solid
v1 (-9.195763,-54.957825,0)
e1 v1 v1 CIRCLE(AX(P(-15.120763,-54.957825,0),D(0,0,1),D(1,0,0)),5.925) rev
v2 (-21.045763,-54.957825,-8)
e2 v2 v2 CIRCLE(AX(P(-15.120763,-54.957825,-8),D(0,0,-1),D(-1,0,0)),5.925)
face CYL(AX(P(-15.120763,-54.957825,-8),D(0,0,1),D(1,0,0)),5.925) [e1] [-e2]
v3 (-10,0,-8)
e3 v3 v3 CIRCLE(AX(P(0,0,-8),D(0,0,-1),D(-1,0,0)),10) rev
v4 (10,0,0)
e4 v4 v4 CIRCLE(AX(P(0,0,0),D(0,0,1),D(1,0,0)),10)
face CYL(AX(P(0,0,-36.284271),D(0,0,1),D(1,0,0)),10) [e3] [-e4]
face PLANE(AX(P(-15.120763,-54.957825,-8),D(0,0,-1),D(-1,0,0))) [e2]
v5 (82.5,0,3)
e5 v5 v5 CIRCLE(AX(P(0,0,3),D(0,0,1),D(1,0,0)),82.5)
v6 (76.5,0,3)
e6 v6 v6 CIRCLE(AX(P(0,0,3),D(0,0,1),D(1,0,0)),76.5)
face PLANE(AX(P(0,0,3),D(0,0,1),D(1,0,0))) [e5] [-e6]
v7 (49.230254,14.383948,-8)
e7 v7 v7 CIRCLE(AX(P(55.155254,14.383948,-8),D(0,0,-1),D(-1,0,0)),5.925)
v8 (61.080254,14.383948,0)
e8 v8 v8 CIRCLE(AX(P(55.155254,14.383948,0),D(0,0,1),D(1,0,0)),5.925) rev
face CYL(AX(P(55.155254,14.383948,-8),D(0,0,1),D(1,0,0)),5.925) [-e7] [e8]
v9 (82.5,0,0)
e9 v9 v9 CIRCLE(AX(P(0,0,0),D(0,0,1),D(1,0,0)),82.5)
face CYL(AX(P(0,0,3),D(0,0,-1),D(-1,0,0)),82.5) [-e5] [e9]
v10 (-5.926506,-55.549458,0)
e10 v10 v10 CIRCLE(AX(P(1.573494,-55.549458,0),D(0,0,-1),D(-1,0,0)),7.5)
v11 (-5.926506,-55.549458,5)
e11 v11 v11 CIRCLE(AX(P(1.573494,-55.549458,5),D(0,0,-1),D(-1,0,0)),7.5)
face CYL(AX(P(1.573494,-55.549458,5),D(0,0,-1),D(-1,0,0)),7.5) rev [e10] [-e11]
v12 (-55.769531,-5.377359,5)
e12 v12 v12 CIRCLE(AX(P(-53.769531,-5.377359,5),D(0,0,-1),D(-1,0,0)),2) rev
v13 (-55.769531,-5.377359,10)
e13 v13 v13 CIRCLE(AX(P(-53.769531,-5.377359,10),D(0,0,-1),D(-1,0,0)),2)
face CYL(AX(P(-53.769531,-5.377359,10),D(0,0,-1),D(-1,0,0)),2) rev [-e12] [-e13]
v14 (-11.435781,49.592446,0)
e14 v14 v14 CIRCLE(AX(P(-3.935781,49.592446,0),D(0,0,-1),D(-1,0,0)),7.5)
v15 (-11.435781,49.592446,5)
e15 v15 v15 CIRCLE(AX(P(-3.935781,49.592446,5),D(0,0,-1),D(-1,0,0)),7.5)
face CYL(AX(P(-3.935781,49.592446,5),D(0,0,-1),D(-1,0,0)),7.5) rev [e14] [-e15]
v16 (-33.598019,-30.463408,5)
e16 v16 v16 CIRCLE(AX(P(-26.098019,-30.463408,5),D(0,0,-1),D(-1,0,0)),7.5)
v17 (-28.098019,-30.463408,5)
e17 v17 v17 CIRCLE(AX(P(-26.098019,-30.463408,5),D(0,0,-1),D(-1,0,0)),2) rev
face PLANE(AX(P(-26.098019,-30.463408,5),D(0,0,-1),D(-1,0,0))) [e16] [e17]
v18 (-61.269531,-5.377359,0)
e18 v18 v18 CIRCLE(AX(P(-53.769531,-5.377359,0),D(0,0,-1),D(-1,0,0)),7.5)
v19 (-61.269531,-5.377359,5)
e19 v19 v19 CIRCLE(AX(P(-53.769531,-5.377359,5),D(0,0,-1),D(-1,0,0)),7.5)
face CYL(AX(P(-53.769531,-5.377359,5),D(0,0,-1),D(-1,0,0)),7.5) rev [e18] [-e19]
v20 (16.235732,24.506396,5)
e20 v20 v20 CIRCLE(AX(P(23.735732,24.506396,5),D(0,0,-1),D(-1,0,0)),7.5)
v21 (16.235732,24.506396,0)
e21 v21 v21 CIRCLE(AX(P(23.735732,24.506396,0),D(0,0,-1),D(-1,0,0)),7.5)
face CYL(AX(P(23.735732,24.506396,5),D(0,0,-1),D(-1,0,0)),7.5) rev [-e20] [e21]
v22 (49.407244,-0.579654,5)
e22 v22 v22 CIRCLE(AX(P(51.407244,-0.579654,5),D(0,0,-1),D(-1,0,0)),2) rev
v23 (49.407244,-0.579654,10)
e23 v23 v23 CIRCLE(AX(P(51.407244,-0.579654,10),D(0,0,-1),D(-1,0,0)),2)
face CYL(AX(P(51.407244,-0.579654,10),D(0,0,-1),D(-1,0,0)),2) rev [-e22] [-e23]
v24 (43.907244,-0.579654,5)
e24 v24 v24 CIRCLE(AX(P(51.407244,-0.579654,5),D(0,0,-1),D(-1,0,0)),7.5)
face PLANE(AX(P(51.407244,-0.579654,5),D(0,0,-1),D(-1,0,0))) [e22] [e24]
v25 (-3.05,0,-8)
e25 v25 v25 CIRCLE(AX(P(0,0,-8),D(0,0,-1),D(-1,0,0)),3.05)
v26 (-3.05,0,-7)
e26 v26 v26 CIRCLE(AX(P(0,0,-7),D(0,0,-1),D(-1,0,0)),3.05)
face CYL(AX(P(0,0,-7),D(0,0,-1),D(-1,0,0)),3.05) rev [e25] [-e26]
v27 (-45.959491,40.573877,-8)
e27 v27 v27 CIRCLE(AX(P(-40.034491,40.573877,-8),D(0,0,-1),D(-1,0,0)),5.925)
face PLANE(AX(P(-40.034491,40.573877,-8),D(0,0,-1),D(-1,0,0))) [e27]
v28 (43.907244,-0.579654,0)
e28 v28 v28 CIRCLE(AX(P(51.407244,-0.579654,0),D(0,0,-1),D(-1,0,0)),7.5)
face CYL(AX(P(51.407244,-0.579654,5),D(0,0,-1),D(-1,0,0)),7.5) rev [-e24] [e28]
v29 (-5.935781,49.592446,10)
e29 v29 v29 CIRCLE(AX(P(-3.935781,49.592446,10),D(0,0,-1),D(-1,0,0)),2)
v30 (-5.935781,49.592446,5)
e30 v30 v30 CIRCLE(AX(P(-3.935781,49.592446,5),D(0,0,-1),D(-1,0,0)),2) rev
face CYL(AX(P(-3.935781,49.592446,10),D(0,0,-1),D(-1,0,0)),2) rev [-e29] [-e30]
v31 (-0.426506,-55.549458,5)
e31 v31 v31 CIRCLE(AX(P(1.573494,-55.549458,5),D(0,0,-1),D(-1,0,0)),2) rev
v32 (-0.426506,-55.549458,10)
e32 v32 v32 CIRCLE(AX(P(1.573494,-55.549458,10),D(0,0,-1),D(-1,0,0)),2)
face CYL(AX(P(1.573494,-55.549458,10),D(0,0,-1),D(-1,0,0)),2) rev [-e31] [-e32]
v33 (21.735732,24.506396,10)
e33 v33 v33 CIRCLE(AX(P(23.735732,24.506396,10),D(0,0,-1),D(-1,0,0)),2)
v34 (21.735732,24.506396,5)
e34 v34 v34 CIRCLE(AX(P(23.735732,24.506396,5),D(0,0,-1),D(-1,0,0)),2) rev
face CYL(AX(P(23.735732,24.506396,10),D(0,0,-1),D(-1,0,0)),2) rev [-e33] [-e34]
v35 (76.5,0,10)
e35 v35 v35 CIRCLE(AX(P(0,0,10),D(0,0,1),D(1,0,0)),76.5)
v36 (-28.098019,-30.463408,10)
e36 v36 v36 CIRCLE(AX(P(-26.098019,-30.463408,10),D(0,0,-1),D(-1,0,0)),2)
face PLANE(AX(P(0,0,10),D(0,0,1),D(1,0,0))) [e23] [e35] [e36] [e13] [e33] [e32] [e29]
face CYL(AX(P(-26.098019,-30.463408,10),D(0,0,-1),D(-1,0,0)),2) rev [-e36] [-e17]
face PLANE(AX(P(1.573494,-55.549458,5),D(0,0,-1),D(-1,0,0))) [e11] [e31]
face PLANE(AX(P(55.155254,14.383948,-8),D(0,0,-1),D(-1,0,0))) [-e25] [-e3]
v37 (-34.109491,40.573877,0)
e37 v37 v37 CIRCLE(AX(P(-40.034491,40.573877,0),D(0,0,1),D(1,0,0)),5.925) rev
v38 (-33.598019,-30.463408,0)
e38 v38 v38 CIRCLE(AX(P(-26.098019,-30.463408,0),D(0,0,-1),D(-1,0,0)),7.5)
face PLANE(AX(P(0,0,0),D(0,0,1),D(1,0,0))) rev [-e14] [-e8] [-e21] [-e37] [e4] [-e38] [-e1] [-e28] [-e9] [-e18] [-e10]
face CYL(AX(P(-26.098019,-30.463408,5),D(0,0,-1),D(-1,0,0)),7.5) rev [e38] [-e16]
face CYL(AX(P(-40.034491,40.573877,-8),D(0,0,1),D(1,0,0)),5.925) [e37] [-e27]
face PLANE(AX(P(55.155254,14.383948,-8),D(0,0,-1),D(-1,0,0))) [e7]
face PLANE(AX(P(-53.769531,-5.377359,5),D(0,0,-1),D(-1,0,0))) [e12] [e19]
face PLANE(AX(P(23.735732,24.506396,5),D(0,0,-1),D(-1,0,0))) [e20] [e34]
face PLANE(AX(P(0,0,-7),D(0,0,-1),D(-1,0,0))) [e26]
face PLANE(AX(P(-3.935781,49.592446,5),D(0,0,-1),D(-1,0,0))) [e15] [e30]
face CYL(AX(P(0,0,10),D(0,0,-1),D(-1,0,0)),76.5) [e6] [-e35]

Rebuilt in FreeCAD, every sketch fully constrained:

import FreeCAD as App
import Part
import Sketcher

V = App.Vector

doc = App.newDocument("Part")
params = doc.addObject("Spreadsheet::Sheet", "Params")
for row, (alias, value) in enumerate([
    ("sketch1_diameter", "165 mm"),
    ("sketch1_diameter2", "28 mm"),
    ("pad1_length", "3 mm"),
    ("sketch2_diameter", "11.85 mm"),
    ("pad2_length", "8 mm"),
    ("sketch3_diameter", "28 mm"),
    ("pad3_length", "3 mm"),
    ("sketch4_diameter", "20 mm"),
    ("pad4_length", "11 mm"),
    ("sketch5_diameter", "6.1 mm"),
    ("pocket1_length", "1 mm"),
    ("sketch6_diameter", "153 mm"),
    ("pad5_length", "7 mm"),
    ("sketch7_diameter", "4 mm"),
    ("sketch8_diameter", "15 mm"),
    ("pocket3_length", "5 mm"),
], start=1):
    params.set(f"A{row}", alias)
    params.set(f"B{row}", "=" + value)
    params.setAlias(f"B{row}", alias)

body = doc.addObject("PartDesign::Body", "Body")

sketch1 = body.newObject("Sketcher::SketchObject", "Sketch")
sketch1.AttachmentSupport = (doc.getObject("XY_Plane"), [""])
sketch1.MapMode = "FlatFace"
sketch1.addGeometry([
    Part.Circle(V(0, 0, 0), V(0, 0, 1), 82),
    Part.Circle(V(0, 0, 0), V(0, 0, 1), 14),
], False)
sketch1.addConstraint([
    Sketcher.Constraint("Coincident", 0, 3, -1, 1),
    Sketcher.Constraint("Coincident", 1, 3, -1, 1),
    Sketcher.Constraint("Diameter", 0, 165.0),
    Sketcher.Constraint("Diameter", 1, 28.0),
])
sketch1.setExpression("Constraints[2]", "Params.sketch1_diameter")
sketch1.setExpression("Constraints[3]", "Params.sketch1_diameter2")
pad1 = body.newObject("PartDesign::Pad", "Pad")
pad1.Profile = sketch1
pad1.setExpression("Length", "Params.pad1_length")

sketch2 = body.newObject("Sketcher::SketchObject", "Sketch001")
sketch2.AttachmentSupport = (doc.getObject("XY_Plane"), [""])
sketch2.MapMode = "FlatFace"
sketch2.addGeometry([
    Part.Circle(V(55, 14, 0), V(0, 0, 1), 6),
    Part.Circle(V(-40, 41, 0), V(0, 0, 1), 6),
    Part.Circle(V(-15, -55, 0), V(0, 0, 1), 6),
], False)
sketch2.addConstraint([
    Sketcher.Constraint("Equal", 0, 1),
    Sketcher.Constraint("Equal", 1, 2),
    Sketcher.Constraint("Diameter", 0, 11.85),
    Sketcher.Constraint("DistanceX", 1, 3, -1, 1, 40.034491),
    Sketcher.Constraint("DistanceY", 0, 3, 1, 3, 26.18993),
    Sketcher.Constraint("DistanceX", 1, 3, 2, 3, 24.913728),
    Sketcher.Constraint("DistanceX", -1, 1, 0, 3, 55.155254),
    Sketcher.Constraint("DistanceY", -1, 1, 0, 3, 14.383948),
    Sketcher.Constraint("DistanceY", 2, 3, -1, 1, 54.957825),
])
sketch2.setExpression("Constraints[2]", "Params.sketch2_diameter")
pad2 = body.newObject("PartDesign::Pad", "Pad001")
pad2.Profile = sketch2
pad2.setExpression("Length", "Params.pad2_length")
pad2.Reversed = True

sketch3 = body.newObject("Sketcher::SketchObject", "Sketch002")
sketch3.AttachmentSupport = (doc.getObject("XY_Plane"), [""])
sketch3.MapMode = "FlatFace"
sketch3.AttachmentOffset = App.Placement(V(0, 0, 3), App.Rotation())
sketch3.addGeometry(Part.Circle(V(0, 0, 0), V(0, 0, 1), 14), False)
sketch3.addConstraint([
    Sketcher.Constraint("Coincident", 0, 3, -1, 1),
    Sketcher.Constraint("Diameter", 0, 28.0),
])
sketch3.setExpression("Constraints[1]", "Params.sketch3_diameter")
pad3 = body.newObject("PartDesign::Pad", "Pad002")
pad3.Profile = sketch3
pad3.setExpression("Length", "Params.pad3_length")
pad3.Reversed = True

sketch4 = body.newObject("Sketcher::SketchObject", "Sketch003")
sketch4.AttachmentSupport = (doc.getObject("XY_Plane"), [""])
sketch4.MapMode = "FlatFace"
sketch4.AttachmentOffset = App.Placement(V(0, 0, 3), App.Rotation())
sketch4.addGeometry(Part.Circle(V(0, 0, 0), V(0, 0, 1), 10), False)
sketch4.addConstraint([
    Sketcher.Constraint("Coincident", 0, 3, -1, 1),
    Sketcher.Constraint("Diameter", 0, 20.0),
])
sketch4.setExpression("Constraints[1]", "Params.sketch4_diameter")
pad4 = body.newObject("PartDesign::Pad", "Pad003")
pad4.Profile = sketch4
pad4.setExpression("Length", "Params.pad4_length")
pad4.Reversed = True

sketch5 = body.newObject("Sketcher::SketchObject", "Sketch004")
sketch5.AttachmentSupport = (doc.getObject("XY_Plane"), [""])
sketch5.MapMode = "FlatFace"
sketch5.AttachmentOffset = App.Placement(V(0, 0, -8), App.Rotation())
sketch5.addGeometry(Part.Circle(V(0, 0, 0), V(0, 0, 1), 3), False)
sketch5.addConstraint([
    Sketcher.Constraint("Coincident", 0, 3, -1, 1),
    Sketcher.Constraint("Diameter", 0, 6.1),
])
sketch5.setExpression("Constraints[1]", "Params.sketch5_diameter")
pocket1 = body.newObject("PartDesign::Pocket", "Pocket")
pocket1.Profile = sketch5
pocket1.setExpression("Length", "Params.pocket1_length")
pocket1.Reversed = True

sketch6 = body.newObject("Sketcher::SketchObject", "Sketch005")
sketch6.AttachmentSupport = (doc.getObject("XY_Plane"), [""])
sketch6.MapMode = "FlatFace"
sketch6.AttachmentOffset = App.Placement(V(0, 0, 3), App.Rotation())
sketch6.addGeometry(Part.Circle(V(0, 0, 0), V(0, 0, 1), 76), False)
sketch6.addConstraint([
    Sketcher.Constraint("Coincident", 0, 3, -1, 1),
    Sketcher.Constraint("Diameter", 0, 153.0),
])
sketch6.setExpression("Constraints[1]", "Params.sketch6_diameter")
pad5 = body.newObject("PartDesign::Pad", "Pad004")
pad5.Profile = sketch6
pad5.setExpression("Length", "Params.pad5_length")

sketch7 = body.newObject("Sketcher::SketchObject", "Sketch006")
sketch7.AttachmentSupport = (doc.getObject("XY_Plane"), [""])
sketch7.MapMode = "FlatFace"
sketch7.addGeometry([
    Part.Circle(V(1.6, -55.5, 0), V(0, 0, 1), 2),
    Part.Circle(V(-26.1, -30.5, 0), V(0, 0, 1), 2),
    Part.Circle(V(-53.8, -5.4, 0), V(0, 0, 1), 2),
    Part.Circle(V(51.4, -0.6, 0), V(0, 0, 1), 2),
    Part.Circle(V(23.7, 24.5, 0), V(0, 0, 1), 2),
    Part.Circle(V(-3.9, 49.6, 0), V(0, 0, 1), 2),
], False)
sketch7.addConstraint([
    Sketcher.Constraint("Equal", 0, 1),
    Sketcher.Constraint("Equal", 1, 2),
    Sketcher.Constraint("Equal", 2, 3),
    Sketcher.Constraint("Equal", 3, 4),
    Sketcher.Constraint("Equal", 4, 5),
    Sketcher.Constraint("Diameter", 0, 4.0),
    Sketcher.Constraint("DistanceY", 0, 3, 2, 3, 50.172099),
    Sketcher.Constraint("DistanceY", 3, 3, 5, 3, 50.172099),
    Sketcher.Constraint("DistanceY", 0, 3, -1, 1, 55.549458),
    Sketcher.Constraint("DistanceX", 1, 3, -1, 1, 26.098019),
    Sketcher.Constraint("DistanceY", 1, 3, -1, 1, 30.463408),
    Sketcher.Constraint("DistanceX", 2, 3, -1, 1, 53.769531),
    Sketcher.Constraint("DistanceX", -1, 1, 4, 3, 23.735732),
    Sketcher.Constraint("DistanceX", 5, 3, -1, 1, 3.935781),
    Sketcher.Constraint("DistanceX", 0, 3, 3, 3, 49.83375),
    Sketcher.Constraint("DistanceY", 3, 3, 4, 3, 25.08605),
    Sketcher.Constraint("DistanceX", -1, 1, 0, 3, 1.573494),
    Sketcher.Constraint("DistanceY", 3, 3, -1, 1, 0.579654),
])
sketch7.setExpression("Constraints[5]", "Params.sketch7_diameter")
pocket2 = body.newObject("PartDesign::Pocket", "Pocket001")
pocket2.Profile = sketch7
pocket2.Type = "ThroughAll"
pocket2.Reversed = True

sketch8 = body.newObject("Sketcher::SketchObject", "Sketch007")
sketch8.AttachmentSupport = (doc.getObject("XY_Plane"), [""])
sketch8.MapMode = "FlatFace"
sketch8.addGeometry([
    Part.Circle(V(-54, -5, 0), V(0, 0, 1), 8),
    Part.Circle(V(-26, -30, 0), V(0, 0, 1), 8),
    Part.Circle(V(2, -56, 0), V(0, 0, 1), 8),
    Part.Circle(V(-4, 50, 0), V(0, 0, 1), 8),
    Part.Circle(V(24, 25, 0), V(0, 0, 1), 8),
    Part.Circle(V(51, -1, 0), V(0, 0, 1), 8),
], False)
sketch8.addConstraint([
    Sketcher.Constraint("Equal", 0, 1),
    Sketcher.Constraint("Equal", 1, 2),
    Sketcher.Constraint("Equal", 2, 3),
    Sketcher.Constraint("Equal", 3, 4),
    Sketcher.Constraint("Equal", 4, 5),
    Sketcher.Constraint("Diameter", 0, 15.0),
    Sketcher.Constraint("DistanceY", 2, 3, 0, 3, 50.172099),
    Sketcher.Constraint("DistanceY", 5, 3, 3, 3, 50.172099),
    Sketcher.Constraint("DistanceX", 0, 3, -1, 1, 53.769531),
    Sketcher.Constraint("DistanceY", 0, 3, -1, 1, 5.377359),
    Sketcher.Constraint("DistanceX", 1, 3, -1, 1, 26.098019),
    Sketcher.Constraint("DistanceY", 1, 3, -1, 1, 30.463408),
    Sketcher.Constraint("DistanceX", 3, 3, -1, 1, 3.935781),
    Sketcher.Constraint("DistanceX", -1, 1, 4, 3, 23.735732),
    Sketcher.Constraint("DistanceY", 4, 3, 3, 3, 25.08605),
    Sketcher.Constraint("DistanceX", 2, 3, 5, 3, 49.83375),
    Sketcher.Constraint("DistanceX", -1, 1, 2, 3, 1.573494),
    Sketcher.Constraint("DistanceY", -1, 1, 3, 3, 49.592446),
])
sketch8.setExpression("Constraints[5]", "Params.sketch8_diameter")
pocket3 = body.newObject("PartDesign::Pocket", "Pocket002")
pocket3.Profile = sketch8
pocket3.setExpression("Length", "Params.pocket3_length")
pocket3.Reversed = True

doc.recompute()
